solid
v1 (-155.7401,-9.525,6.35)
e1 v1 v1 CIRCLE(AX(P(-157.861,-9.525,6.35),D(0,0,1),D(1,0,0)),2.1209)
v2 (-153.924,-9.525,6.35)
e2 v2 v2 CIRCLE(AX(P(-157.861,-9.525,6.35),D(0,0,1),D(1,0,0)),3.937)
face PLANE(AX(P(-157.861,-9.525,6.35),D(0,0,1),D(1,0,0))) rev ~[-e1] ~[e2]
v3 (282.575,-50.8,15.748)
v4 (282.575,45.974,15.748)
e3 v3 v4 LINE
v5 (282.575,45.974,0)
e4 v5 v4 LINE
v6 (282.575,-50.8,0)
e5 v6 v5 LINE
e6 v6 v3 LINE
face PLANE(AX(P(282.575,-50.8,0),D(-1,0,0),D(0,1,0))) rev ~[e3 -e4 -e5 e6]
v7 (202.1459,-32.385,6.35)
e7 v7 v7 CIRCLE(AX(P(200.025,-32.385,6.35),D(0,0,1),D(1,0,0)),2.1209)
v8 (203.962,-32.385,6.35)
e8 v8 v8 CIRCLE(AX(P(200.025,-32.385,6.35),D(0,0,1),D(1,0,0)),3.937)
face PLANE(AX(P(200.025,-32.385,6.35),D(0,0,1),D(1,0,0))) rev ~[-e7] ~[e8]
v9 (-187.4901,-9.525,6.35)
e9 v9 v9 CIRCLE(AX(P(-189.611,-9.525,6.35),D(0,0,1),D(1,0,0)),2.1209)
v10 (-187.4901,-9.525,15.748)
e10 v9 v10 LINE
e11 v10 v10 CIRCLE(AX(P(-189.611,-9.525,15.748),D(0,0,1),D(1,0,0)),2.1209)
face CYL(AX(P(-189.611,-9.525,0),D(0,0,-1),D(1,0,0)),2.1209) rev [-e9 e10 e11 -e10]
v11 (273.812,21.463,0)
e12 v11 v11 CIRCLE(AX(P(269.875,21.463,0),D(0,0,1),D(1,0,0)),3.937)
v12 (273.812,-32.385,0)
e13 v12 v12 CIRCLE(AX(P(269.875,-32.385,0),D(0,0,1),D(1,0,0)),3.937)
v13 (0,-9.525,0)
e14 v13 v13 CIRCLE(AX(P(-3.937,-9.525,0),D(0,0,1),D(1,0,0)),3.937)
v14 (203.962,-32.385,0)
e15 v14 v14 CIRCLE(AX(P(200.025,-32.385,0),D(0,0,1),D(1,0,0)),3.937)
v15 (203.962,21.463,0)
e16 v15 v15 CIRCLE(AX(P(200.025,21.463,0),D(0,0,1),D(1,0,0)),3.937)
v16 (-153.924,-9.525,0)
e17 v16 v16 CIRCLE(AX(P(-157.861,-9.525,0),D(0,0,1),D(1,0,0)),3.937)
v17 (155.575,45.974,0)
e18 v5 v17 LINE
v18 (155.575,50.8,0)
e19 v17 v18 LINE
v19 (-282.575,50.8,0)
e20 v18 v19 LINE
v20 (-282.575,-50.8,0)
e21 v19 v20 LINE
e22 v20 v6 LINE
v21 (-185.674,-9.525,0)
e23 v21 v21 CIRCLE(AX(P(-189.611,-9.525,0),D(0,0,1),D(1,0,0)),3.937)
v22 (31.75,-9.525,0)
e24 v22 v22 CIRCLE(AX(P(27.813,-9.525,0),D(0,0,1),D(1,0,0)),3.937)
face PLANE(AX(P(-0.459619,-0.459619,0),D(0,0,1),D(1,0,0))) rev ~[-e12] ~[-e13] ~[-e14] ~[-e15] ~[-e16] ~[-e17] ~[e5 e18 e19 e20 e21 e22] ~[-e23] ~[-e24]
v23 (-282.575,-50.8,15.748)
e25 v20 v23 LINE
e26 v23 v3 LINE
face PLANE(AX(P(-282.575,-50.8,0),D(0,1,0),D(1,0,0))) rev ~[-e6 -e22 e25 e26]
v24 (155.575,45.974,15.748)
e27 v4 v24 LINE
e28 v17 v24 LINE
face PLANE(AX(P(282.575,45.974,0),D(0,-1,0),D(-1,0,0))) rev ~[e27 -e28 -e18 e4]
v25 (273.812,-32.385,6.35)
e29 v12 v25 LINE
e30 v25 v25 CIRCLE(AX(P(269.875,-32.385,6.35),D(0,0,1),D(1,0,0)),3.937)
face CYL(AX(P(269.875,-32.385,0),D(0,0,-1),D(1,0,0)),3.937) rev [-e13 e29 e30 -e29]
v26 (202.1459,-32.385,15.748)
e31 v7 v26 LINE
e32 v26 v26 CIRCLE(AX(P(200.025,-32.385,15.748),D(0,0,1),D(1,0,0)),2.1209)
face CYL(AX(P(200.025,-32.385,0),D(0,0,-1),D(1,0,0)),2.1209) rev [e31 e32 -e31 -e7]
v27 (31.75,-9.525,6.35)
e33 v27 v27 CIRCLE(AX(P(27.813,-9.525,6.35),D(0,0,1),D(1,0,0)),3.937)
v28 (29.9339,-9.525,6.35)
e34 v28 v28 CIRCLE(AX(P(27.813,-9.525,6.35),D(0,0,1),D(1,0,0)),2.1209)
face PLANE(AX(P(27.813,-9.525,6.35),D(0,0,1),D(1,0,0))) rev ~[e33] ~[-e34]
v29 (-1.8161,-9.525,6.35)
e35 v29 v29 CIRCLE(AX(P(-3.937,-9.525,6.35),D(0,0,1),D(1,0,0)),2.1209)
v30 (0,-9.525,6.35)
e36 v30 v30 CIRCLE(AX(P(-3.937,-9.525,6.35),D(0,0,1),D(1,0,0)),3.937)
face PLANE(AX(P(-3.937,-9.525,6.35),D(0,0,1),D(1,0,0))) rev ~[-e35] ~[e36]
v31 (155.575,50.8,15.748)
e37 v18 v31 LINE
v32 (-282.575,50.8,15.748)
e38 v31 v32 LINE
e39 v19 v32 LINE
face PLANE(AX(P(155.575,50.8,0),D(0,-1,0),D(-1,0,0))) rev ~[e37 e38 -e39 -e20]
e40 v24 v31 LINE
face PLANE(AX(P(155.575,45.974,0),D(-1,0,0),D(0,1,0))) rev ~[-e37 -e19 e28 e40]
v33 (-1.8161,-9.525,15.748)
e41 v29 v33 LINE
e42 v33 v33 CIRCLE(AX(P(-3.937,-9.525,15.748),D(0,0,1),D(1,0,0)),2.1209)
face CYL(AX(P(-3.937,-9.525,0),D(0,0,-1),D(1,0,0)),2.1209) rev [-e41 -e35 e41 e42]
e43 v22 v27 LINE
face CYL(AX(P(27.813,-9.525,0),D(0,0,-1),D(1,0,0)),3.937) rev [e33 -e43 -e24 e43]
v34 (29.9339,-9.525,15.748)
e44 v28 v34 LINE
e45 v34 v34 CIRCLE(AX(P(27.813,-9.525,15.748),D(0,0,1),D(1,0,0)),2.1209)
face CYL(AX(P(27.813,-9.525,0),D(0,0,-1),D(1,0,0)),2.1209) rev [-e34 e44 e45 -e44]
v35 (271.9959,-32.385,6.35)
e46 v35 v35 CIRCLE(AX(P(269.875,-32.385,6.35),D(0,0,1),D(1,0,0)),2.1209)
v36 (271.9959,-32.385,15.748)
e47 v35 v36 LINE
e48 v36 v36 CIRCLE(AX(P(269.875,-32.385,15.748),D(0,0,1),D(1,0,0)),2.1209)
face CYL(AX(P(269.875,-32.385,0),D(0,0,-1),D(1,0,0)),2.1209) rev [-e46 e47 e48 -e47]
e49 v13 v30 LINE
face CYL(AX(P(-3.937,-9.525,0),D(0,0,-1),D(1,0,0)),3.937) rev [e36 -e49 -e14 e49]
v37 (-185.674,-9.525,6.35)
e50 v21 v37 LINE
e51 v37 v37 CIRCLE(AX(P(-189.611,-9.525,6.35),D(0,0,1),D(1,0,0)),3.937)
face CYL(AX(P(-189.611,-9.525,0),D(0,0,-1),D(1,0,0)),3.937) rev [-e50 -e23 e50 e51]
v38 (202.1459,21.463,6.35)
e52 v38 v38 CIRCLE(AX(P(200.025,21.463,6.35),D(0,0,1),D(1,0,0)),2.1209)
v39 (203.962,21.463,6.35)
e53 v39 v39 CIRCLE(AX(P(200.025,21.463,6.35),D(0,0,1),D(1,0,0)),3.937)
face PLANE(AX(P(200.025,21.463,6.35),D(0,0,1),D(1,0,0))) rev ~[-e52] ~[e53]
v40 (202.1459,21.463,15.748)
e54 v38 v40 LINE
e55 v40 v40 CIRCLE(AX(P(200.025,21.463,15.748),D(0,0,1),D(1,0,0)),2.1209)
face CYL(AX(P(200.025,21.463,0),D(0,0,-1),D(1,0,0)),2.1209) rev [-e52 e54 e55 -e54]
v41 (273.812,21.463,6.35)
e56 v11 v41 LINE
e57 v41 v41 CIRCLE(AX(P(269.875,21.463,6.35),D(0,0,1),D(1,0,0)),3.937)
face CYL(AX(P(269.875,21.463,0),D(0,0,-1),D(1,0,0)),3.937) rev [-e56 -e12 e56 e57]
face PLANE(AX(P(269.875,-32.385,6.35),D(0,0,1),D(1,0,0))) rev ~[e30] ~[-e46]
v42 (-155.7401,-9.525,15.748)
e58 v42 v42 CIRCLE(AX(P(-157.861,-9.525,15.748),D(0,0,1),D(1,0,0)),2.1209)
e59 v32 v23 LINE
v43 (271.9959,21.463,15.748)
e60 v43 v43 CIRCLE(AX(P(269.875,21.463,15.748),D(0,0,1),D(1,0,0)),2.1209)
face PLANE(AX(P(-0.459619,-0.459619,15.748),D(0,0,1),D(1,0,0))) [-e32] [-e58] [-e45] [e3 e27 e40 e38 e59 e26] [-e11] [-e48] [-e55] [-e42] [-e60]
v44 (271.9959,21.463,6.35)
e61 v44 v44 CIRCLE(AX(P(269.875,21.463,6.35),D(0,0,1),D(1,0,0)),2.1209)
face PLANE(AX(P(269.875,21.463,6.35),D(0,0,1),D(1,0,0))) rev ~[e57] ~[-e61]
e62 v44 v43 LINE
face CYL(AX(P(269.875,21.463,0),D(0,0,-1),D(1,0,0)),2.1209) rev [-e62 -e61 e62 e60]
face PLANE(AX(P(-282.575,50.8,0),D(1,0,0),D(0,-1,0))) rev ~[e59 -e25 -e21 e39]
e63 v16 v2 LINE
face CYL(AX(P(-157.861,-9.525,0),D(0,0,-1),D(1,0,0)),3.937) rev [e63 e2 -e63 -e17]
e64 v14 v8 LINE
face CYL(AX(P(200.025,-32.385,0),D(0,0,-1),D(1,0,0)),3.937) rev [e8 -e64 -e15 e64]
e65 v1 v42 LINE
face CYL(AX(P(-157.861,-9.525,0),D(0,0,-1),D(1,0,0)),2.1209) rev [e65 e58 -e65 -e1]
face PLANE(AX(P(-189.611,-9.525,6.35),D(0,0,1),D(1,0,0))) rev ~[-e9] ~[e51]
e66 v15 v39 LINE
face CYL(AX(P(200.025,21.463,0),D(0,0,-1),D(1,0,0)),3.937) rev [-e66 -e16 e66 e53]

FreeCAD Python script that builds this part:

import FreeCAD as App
import Part
import Sketcher

V = App.Vector
Q = App.Units.Quantity

doc = App.newDocument("Part")
params = doc.addObject("Spreadsheet::Sheet", "Params")
for row, (alias, value) in enumerate([
    ("sketch1_width", "5 in"),
    ("sketch1_height", "4 in"),
    ("sketch1_diameter", "0.167 in"),
    ("sketch1_width2", "22.25 in"),
    ("sketch1_height2", "3.81 in"),
    ("pad1_length", "0.62 in"),
    ("sketch2_diameter", "0.31 in"),
    ("sketch2_diameter2", "0.167 in"),
    ("pocket1_length", "0.25 in"),
], start=1):
    params.set(f"A{row}", alias)
    params.set(f"B{row}", "=" + value)
    params.setAlias(f"B{row}", alias)

body = doc.addObject("PartDesign::Body", "Body")

sketch1 = body.newObject("Sketcher::SketchObject", "Sketch")
sketch1.AttachmentSupport = (doc.getObject("XY_Plane"), [""])
sketch1.MapMode = "FlatFace"
sketch1.addGeometry([
    Part.LineSegment(V(-282.575, -50.8, 0), V(282.575, -50.8, 0)),
    Part.LineSegment(V(282.575, -50.8, 0), V(282.575, 45.974, 0)),
    Part.LineSegment(V(282.575, 45.974, 0), V(155.575, 45.974, 0)),
    Part.LineSegment(V(155.575, 45.974, 0), V(155.575, 50.8, 0)),
    Part.LineSegment(V(155.575, 50.8, 0), V(-282.575, 50.8, 0)),
    Part.LineSegment(V(-282.575, 50.8, 0), V(-282.575, -50.8, 0)),
    Part.Circle(V(-189.611, -9.525, 0), V(0, 0, 1), 2.1209),
    Part.Circle(V(-157.861, -9.525, 0), V(0, 0, 1), 2.1209),
    Part.Circle(V(-3.937, -9.525, 0), V(0, 0, 1), 2.1209),
    Part.Circle(V(27.813, -9.525, 0), V(0, 0, 1), 2.1209),
    Part.Circle(V(200.025, -32.385, 0), V(0, 0, 1), 2.1209),
    Part.Circle(V(269.875, -32.385, 0), V(0, 0, 1), 2.1209),
    Part.Circle(V(200.025, 21.463, 0), V(0, 0, 1), 2.1209),
    Part.Circle(V(269.875, 21.463, 0), V(0, 0, 1), 2.1209),
], False)
sketch1.addConstraint([
    Sketcher.Constraint("Coincident", 0, 2, 1, 1),
    Sketcher.Constraint("Coincident", 1, 2, 2, 1),
    Sketcher.Constraint("Coincident", 2, 2, 3, 1),
    Sketcher.Constraint("Coincident", 3, 2, 4, 1),
    Sketcher.Constraint("Coincident", 4, 2, 5, 1),
    Sketcher.Constraint("Coincident", 5, 2, 0, 1),
    Sketcher.Constraint("Horizontal", 0),
    Sketcher.Constraint("Vertical", 1),
    Sketcher.Constraint("Horizontal", 2),
    Sketcher.Constraint("Vertical", 3),
    Sketcher.Constraint("Horizontal", 4),
    Sketcher.Constraint("Vertical", 5),
    Sketcher.Constraint("Equal", 6, 7),
    Sketcher.Constraint("Equal", 7, 8),
    Sketcher.Constraint("Equal", 8, 9),
    Sketcher.Constraint("Equal", 9, 10),
    Sketcher.Constraint("Equal", 10, 11),
    Sketcher.Constraint("Equal", 11, 12),
    Sketcher.Constraint("Equal", 12, 13),
    Sketcher.Constraint("Symmetric", 0, 2, 4, 2, -1, 1),
    Sketcher.Constraint("Horizontal", 6, 3, 7, 3),
    Sketcher.Constraint("Horizontal", 7, 3, 8, 3),
    Sketcher.Constraint("Horizontal", 8, 3, 9, 3),
    Sketcher.Constraint("Horizontal", 10, 3, 11, 3),
    Sketcher.Constraint("Horizontal", 12, 3, 13, 3),
    Sketcher.Constraint("Vertical", 10, 3, 12, 3),
    Sketcher.Constraint("Vertical", 11, 3, 13, 3),
    Sketcher.Constraint("DistanceX", 2, 2, 2, 1, Q("5 in")),
    Sketcher.Constraint("DistanceY", 5, 2, 5, 1, Q("4 in")),
    Sketcher.Constraint("Diameter", 6, Q("0.167 in")),
    Sketcher.Constraint("DistanceX", 0, 1, 0, 2, Q("22.25 in")),
    Sketcher.Constraint("DistanceY", 1, 1, 1, 2, Q("3.81 in")),
    Sketcher.Constraint("DistanceY", 10, 3, 9, 3, Q("0.9 in")),
    Sketcher.Constraint("DistanceX", 11, 3, 0, 2, Q("0.5 in")),
    Sketcher.Constraint("DistanceX", 6, 3, 7, 3, Q("1.25 in")),
    Sketcher.Constraint("DistanceX", 7, 3, 8, 3, Q("6.06 in")),
    Sketcher.Constraint("DistanceX", 8, 3, 9, 3, Q("1.25 in")),
    Sketcher.Constraint("DistanceX", 9, 3, 10, 3, Q("6.78 in")),
    Sketcher.Constraint("DistanceX", 10, 3, 11, 3, Q("2.75 in")),
    Sketcher.Constraint("DistanceY", 10, 3, 12, 3, Q("2.12 in")),
    Sketcher.Constraint("DistanceY", 6, 3, -1, 1, Q("0.375 in")),
])
sketch1.setExpression("Constraints[27]", "Params.sketch1_width")
sketch1.setExpression("Constraints[28]", "Params.sketch1_height")
sketch1.setExpression("Constraints[29]", "Params.sketch1_diameter")
sketch1.setExpression("Constraints[30]", "Params.sketch1_width2")
sketch1.setExpression("Constraints[31]", "Params.sketch1_height2")
pad1 = body.newObject("PartDesign::Pad", "Pad")
pad1.Profile = sketch1
pad1.setExpression("Length", "Params.pad1_length")

sketch2 = body.newObject("Sketcher::SketchObject", "Sketch001")
sketch2.AttachmentSupport = (doc.getObject("XY_Plane"), [""])
sketch2.MapMode = "FlatFace"
sketch2.addGeometry([
    Part.Circle(V(-189.611, -9.525, 0), V(0, 0, 1), 3.937),
    Part.Circle(V(-189.611, -9.525, 0), V(0, 0, 1), 2.1209),
    Part.Circle(V(-157.861, -9.525, 0), V(0, 0, 1), 3.937),
    Part.Circle(V(-157.861, -9.525, 0), V(0, 0, 1), 2.1209),
    Part.Circle(V(-3.937, -9.525, 0), V(0, 0, 1), 3.937),
    Part.Circle(V(-3.937, -9.525, 0), V(0, 0, 1), 2.1209),
    Part.Circle(V(27.813, -9.525, 0), V(0, 0, 1), 3.937),
    Part.Circle(V(27.813, -9.525, 0), V(0, 0, 1), 2.1209),
    Part.Circle(V(200.025, 21.463, 0), V(0, 0, 1), 3.937),
    Part.Circle(V(200.025, 21.463, 0), V(0, 0, 1), 2.1209),
    Part.Circle(V(269.875, 21.463, 0), V(0, 0, 1), 3.937),
    Part.Circle(V(269.875, 21.463, 0), V(0, 0, 1), 2.1209),
    Part.Circle(V(269.875, -32.385, 0), V(0, 0, 1), 3.937),
    Part.Circle(V(269.875, -32.385, 0), V(0, 0, 1), 2.1209),
    Part.Circle(V(200.025, -32.385, 0), V(0, 0, 1), 3.937),
    Part.Circle(V(200.025, -32.385, 0), V(0, 0, 1), 2.1209),
], False)
sketch2.addConstraint([
    Sketcher.Constraint("Coincident", 1, 3, 0, 3),
    Sketcher.Constraint("Coincident", 3, 3, 2, 3),
    Sketcher.Constraint("Coincident", 5, 3, 4, 3),
    Sketcher.Constraint("Coincident", 7, 3, 6, 3),
    Sketcher.Constraint("Coincident", 9, 3, 8, 3),
    Sketcher.Constraint("Coincident", 11, 3, 10, 3),
    Sketcher.Constraint("Coincident", 13, 3, 12, 3),
    Sketcher.Constraint("Coincident", 15, 3, 14, 3),
    Sketcher.Constraint("Equal", 0, 2),
    Sketcher.Constraint("Equal", 1, 3),
    Sketcher.Constraint("Equal", 2, 4),
    Sketcher.Constraint("Equal", 3, 5),
    Sketcher.Constraint("Equal", 4, 6),
    Sketcher.Constraint("Equal", 5, 7),
    Sketcher.Constraint("Equal", 6, 8),
    Sketcher.Constraint("Equal", 7, 9),
    Sketcher.Constraint("Equal", 8, 10),
    Sketcher.Constraint("Equal", 9, 11),
    Sketcher.Constraint("Equal", 10, 12),
    Sketcher.Constraint("Equal", 11, 13),
    Sketcher.Constraint("Equal", 12, 14),
    Sketcher.Constraint("Equal", 13, 15),
    Sketcher.Constraint("Horizontal", 1, 3, 2, 3),
    Sketcher.Constraint("Horizontal", 3, 3, 4, 3),
    Sketcher.Constraint("Horizontal", 5, 3, 6, 3),
    Sketcher.Constraint("Horizontal", 9, 3, 10, 3),
    Sketcher.Constraint("Horizontal", 13, 3, 14, 3),
    Sketcher.Constraint("Vertical", 11, 3, 12, 3),
    Sketcher.Constraint("Vertical", 9, 3, 14, 3),
    Sketcher.Constraint("Diameter", 0, Q("0.31 in")),
    Sketcher.Constraint("Diameter", 1, Q("0.167 in")),
    Sketcher.Constraint("DistanceY", 12, 3, 6, 3, Q("0.9 in")),
    Sketcher.Constraint("DistanceX", 0, 3, 2, 3, Q("1.25 in")),
    Sketcher.Constraint("DistanceX", 2, 3, 4, 3, Q("6.06 in")),
    Sketcher.Constraint("DistanceX", 4, 3, 6, 3, Q("1.25 in")),
    Sketcher.Constraint("DistanceX", 6, 3, 8, 3, Q("6.78 in")),
    Sketcher.Constraint("DistanceY", 6, 3, 8, 3, Q("1.22 in")),
    Sketcher.Constraint("DistanceX", 8, 3, 10, 3, Q("2.75 in")),
    Sketcher.Constraint("DistanceX", 0, 3, -1, 1, Q("7.465 in")),
    Sketcher.Constraint("DistanceY", 0, 3, -1, 1, Q("0.375 in")),
])
sketch2.setExpression("Constraints[29]", "Params.sketch2_diameter")
sketch2.setExpression("Constraints[30]", "Params.sketch2_diameter2")
pocket1 = body.newObject("PartDesign::Pocket", "Pocket")
pocket1.Profile = sketch2
pocket1.setExpression("Length", "Params.pocket1_length")
pocket1.Reversed = True

doc.recompute()
